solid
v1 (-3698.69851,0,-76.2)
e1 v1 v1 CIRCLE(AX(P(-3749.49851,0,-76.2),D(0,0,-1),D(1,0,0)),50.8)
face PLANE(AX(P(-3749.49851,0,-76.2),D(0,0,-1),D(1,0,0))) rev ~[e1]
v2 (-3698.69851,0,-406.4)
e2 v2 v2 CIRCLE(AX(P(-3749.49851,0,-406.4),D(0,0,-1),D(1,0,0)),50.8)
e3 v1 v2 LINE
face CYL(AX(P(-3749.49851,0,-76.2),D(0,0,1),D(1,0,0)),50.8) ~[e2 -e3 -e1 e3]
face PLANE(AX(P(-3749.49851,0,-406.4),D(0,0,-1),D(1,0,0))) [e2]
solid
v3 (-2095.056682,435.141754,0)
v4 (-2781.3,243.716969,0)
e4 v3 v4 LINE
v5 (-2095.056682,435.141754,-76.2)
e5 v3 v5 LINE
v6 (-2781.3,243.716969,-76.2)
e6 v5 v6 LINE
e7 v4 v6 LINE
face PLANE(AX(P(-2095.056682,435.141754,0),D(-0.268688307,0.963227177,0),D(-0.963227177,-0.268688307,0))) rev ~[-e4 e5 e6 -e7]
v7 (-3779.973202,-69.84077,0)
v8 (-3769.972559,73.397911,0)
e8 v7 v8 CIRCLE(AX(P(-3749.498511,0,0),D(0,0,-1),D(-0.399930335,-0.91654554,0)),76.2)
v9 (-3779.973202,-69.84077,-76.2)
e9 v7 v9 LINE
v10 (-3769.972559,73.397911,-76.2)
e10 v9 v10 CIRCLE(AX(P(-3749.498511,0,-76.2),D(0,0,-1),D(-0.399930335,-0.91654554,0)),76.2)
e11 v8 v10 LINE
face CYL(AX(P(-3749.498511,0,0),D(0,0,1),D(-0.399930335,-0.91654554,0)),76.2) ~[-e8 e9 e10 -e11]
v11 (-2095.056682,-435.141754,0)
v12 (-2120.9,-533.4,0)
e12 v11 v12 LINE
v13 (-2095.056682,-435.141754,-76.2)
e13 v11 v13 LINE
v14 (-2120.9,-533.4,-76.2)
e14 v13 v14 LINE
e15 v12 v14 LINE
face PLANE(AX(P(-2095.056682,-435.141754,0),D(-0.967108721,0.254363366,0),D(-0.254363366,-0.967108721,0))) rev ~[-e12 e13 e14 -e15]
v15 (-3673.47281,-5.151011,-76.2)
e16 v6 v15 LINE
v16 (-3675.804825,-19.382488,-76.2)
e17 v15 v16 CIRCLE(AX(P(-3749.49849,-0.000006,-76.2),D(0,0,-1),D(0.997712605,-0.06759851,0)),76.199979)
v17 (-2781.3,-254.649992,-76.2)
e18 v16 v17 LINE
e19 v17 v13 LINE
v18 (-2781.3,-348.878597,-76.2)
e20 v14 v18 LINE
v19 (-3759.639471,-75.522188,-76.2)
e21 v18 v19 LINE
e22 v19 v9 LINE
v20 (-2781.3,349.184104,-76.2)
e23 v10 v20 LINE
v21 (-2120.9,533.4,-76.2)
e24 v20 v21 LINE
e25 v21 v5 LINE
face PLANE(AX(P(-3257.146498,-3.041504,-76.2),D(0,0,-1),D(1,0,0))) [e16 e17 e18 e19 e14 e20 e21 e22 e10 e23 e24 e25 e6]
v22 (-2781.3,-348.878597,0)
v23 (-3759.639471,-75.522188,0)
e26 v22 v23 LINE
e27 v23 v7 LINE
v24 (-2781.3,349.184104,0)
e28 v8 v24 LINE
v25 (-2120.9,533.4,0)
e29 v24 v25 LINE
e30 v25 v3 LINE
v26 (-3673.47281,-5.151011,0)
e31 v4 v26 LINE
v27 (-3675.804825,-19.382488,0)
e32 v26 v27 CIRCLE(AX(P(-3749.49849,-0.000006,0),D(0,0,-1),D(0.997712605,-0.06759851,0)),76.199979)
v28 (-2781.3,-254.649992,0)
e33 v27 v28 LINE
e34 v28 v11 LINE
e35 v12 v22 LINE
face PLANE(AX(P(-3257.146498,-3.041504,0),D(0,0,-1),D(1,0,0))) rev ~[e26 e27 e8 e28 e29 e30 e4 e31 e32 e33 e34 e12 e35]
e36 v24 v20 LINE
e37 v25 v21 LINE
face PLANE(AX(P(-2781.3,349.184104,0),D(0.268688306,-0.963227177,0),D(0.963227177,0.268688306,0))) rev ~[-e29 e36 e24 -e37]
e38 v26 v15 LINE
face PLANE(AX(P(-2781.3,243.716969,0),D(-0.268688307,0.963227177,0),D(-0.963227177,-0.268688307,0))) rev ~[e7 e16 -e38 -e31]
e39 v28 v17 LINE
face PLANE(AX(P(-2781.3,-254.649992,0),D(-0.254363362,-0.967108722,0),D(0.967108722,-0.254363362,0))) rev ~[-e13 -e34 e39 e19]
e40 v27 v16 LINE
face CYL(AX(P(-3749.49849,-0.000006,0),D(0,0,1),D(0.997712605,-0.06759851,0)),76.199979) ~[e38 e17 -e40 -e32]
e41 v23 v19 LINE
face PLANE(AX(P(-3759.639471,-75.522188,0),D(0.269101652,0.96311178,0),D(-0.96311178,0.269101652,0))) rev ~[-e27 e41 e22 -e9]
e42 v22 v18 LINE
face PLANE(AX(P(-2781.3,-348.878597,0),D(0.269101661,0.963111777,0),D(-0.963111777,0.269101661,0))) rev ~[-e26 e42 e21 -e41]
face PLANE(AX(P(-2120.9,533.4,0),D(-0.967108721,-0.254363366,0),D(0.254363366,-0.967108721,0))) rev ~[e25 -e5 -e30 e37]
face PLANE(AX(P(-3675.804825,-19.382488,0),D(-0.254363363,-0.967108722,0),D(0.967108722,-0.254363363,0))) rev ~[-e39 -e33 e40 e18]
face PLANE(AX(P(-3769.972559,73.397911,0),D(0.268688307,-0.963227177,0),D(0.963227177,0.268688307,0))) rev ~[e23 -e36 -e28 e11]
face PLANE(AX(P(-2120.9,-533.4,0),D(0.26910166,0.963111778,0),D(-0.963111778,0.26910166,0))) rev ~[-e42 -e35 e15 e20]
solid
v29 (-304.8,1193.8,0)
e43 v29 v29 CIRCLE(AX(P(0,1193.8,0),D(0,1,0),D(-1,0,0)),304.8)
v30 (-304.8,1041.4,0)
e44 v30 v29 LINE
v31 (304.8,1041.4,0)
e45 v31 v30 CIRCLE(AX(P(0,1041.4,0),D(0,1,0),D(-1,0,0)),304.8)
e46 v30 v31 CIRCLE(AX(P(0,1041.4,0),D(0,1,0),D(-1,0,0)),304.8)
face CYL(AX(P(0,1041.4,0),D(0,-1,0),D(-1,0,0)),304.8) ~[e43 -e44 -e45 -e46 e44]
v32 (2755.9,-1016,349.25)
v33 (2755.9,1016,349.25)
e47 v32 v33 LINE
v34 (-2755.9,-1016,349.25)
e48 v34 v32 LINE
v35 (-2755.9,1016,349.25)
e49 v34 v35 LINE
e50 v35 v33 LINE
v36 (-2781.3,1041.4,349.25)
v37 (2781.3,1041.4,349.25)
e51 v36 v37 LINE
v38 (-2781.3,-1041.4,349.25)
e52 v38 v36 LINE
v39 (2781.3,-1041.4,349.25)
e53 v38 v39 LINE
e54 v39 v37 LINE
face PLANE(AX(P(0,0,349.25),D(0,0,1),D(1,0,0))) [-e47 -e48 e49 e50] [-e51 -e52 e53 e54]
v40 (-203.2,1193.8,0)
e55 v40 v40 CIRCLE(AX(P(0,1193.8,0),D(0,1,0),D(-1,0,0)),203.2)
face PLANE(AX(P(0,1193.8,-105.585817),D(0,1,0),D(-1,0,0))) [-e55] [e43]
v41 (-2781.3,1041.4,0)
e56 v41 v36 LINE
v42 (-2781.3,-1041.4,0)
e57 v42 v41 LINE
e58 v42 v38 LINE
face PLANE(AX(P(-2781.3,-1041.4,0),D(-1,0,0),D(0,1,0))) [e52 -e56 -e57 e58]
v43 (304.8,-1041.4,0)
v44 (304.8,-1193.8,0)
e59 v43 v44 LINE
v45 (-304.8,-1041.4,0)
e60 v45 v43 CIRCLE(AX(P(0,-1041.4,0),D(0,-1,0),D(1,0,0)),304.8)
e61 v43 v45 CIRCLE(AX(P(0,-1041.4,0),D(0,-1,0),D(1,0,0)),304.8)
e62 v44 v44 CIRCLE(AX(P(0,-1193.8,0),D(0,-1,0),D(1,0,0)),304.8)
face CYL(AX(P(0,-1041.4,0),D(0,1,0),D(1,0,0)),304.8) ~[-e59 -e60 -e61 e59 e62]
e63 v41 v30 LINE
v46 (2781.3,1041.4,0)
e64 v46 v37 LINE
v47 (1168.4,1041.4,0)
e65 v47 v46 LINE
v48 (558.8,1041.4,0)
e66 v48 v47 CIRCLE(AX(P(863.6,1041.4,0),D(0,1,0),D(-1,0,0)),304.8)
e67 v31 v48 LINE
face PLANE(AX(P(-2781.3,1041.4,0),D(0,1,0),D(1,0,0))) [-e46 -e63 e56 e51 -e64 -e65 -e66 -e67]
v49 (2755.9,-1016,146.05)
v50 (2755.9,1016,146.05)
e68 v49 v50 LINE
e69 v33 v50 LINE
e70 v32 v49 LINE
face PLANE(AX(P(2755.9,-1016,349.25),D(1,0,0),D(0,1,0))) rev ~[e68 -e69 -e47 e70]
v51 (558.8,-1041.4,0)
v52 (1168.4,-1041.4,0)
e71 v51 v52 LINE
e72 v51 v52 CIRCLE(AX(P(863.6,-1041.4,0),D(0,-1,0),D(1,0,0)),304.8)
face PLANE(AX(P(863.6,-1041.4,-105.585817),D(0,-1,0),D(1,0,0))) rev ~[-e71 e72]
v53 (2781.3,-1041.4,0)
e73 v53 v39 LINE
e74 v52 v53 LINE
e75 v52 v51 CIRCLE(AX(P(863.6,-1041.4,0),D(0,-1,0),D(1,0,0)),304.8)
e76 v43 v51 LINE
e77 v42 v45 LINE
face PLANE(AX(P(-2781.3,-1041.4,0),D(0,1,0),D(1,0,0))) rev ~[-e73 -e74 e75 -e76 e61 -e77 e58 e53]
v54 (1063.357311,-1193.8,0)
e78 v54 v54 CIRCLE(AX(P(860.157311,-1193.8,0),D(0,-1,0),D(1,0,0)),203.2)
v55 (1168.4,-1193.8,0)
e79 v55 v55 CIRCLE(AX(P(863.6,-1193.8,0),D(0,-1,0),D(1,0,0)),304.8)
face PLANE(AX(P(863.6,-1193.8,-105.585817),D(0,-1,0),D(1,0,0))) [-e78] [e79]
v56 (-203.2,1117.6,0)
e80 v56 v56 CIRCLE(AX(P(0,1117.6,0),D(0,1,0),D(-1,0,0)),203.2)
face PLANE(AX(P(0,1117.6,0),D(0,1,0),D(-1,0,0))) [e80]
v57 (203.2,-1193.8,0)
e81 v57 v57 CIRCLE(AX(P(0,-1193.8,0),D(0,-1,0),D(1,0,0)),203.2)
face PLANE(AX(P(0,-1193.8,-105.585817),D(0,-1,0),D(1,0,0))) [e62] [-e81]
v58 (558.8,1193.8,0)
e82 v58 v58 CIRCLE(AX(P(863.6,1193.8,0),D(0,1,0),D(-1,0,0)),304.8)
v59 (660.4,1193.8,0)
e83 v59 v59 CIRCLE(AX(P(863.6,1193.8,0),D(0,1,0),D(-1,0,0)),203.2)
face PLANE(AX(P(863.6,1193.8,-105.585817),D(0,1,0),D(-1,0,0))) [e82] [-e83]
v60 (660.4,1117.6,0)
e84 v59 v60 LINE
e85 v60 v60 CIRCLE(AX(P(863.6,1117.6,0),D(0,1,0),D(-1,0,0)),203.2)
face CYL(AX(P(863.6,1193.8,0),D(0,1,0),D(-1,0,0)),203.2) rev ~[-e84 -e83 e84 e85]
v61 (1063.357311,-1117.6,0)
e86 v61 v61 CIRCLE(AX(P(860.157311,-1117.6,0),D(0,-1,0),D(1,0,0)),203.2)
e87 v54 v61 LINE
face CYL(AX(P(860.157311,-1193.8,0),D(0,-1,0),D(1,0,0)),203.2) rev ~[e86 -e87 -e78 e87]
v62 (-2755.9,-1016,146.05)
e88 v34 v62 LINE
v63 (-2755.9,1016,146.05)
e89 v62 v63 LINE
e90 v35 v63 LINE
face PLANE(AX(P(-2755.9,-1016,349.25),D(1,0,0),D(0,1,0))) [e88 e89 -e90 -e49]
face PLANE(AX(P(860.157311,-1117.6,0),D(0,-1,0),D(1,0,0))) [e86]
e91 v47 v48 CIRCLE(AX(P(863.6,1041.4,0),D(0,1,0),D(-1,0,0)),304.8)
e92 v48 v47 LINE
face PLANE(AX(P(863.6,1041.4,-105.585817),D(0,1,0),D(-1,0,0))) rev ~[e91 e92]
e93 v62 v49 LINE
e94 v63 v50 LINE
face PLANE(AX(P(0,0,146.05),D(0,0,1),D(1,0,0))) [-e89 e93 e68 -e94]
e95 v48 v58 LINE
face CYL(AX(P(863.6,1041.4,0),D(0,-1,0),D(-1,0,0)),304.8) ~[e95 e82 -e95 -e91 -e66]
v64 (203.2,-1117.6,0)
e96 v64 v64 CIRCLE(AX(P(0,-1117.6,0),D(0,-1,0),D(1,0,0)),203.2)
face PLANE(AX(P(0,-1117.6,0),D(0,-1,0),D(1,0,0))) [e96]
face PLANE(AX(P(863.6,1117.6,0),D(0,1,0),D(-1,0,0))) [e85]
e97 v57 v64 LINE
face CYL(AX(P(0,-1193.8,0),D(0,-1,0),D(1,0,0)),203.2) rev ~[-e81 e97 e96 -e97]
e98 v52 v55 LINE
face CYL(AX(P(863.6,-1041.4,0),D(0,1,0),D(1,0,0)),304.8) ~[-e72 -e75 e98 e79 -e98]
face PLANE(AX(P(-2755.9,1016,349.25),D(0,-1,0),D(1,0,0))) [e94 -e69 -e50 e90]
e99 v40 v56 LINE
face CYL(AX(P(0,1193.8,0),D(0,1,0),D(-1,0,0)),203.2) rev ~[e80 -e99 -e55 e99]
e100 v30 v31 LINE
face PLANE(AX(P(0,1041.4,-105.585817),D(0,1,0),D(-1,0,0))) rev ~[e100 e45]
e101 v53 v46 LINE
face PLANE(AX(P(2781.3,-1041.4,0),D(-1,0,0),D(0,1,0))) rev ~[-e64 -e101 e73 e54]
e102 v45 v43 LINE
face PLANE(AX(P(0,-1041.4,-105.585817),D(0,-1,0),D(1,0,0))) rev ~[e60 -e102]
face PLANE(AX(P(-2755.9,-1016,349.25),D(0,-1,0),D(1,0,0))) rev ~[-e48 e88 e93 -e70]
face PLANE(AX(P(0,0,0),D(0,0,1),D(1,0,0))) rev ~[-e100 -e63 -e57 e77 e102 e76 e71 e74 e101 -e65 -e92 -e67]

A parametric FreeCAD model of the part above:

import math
import FreeCAD as App
import Part
import Sketcher
Q = App.Units.Quantity


def add_polygon(sketch, points):
    """Adds a closed chain of lines whose ends are joined by coincident constraints."""
    first, n = sketch.GeometryCount, len(points)
    for a, b in zip(points, points[1:] + points[:1]):
        sketch.addGeometry(Part.LineSegment(App.Vector(*a, 0), App.Vector(*b, 0)), False)
    for i in range(n):
        sketch.addConstraint(Sketcher.Constraint("Coincident", first + i, 2, first + (i + 1) % n, 1))

doc = App.newDocument("Part")
body = doc.addObject("PartDesign::Body", "Body")

# Sketch on XY plane
sketch1 = doc.addObject("Sketcher::SketchObject", "Sketch")
body.addObject(sketch1)
sketch1.AttachmentSupport = (doc.XY_Plane, [""])
sketch1.MapMode = "FlatFace"
add_polygon(sketch1, [(-2781, 1041), (-2781, -1041), (2781, -1041), (2781, 1041)])  # lines 0-3
sketch1.addConstraint([
    Sketcher.Constraint("Vertical", 0),
    Sketcher.Constraint("Horizontal", 1),
    Sketcher.Constraint("Vertical", 2),
    Sketcher.Constraint("Horizontal", 3),
    Sketcher.Constraint("Symmetric", 0, 2, 2, 2, -1, 1),
    Sketcher.Constraint("DistanceX", 1, 1, 1, 2, Q("219 in")),
    Sketcher.Constraint("DistanceY", 0, 2, 0, 1, Q("82 in")),
])
pad1 = doc.addObject("PartDesign::Pad", "Pad")
body.addObject(pad1)
pad1.Profile = sketch1
pad1.Length = Q("13.75 in")

# Sketch on XY plane
sketch2 = doc.addObject("Sketcher::SketchObject", "Sketch001")
body.addObject(sketch2)
sketch2.AttachmentSupport = (doc.XY_Plane, [""])
sketch2.MapMode = "FlatFace"
sketch2.AttachmentOffset = App.Placement(App.Vector(0, 0, 13.75 * 25.4), App.Rotation())
add_polygon(sketch2, [(-2756, 1016), (-2756, -1016), (2756, -1016), (2756, 1016)])  # lines 0-3
sketch2.addConstraint([
    Sketcher.Constraint("Vertical", 0),
    Sketcher.Constraint("Horizontal", 1),
    Sketcher.Constraint("Vertical", 2),
    Sketcher.Constraint("Horizontal", 3),
    Sketcher.Constraint("Symmetric", 0, 2, 2, 2, -1, 1),
    Sketcher.Constraint("DistanceX", 1, 1, 1, 2, Q("217 in")),
    Sketcher.Constraint("DistanceY", 0, 2, 0, 1, Q("80 in")),
])
pocket1 = doc.addObject("PartDesign::Pocket", "Pocket")
body.addObject(pocket1)
pocket1.Profile = sketch2
pocket1.Length = Q("8 in")

# Sketch on XZ plane
sketch3 = doc.addObject("Sketcher::SketchObject", "Sketch002")
body.addObject(sketch3)
sketch3.AttachmentSupport = (doc.XZ_Plane, [""])
sketch3.MapMode = "FlatFace"
sketch3.AttachmentOffset = App.Placement(App.Vector(0, 0, 41 * 25.4), App.Rotation())
sketch3.addGeometry([
    Part.Circle(App.Vector(0, 0, 0), App.Vector(0, 0, 1), 305),
    Part.Circle(App.Vector(864, 0, 0), App.Vector(0, 0, 1), 305),
], False)
sketch3.addConstraint([
    Sketcher.Constraint("Coincident", 0, 3, -1, 1),
    Sketcher.Constraint("Equal", 0, 1),
    Sketcher.Constraint("PointOnObject", 1, 3, -1),
    Sketcher.Constraint("Diameter", 0, Q("24 in")),
    Sketcher.Constraint("DistanceX", -1, 1, 1, 3, Q("34 in")),
])
pad2 = doc.addObject("PartDesign::Pad", "Pad001")
body.addObject(pad2)
pad2.Profile = sketch3
pad2.Length = Q("6 in")

# Sketch on XZ plane
sketch4 = doc.addObject("Sketcher::SketchObject", "Sketch003")
body.addObject(sketch4)
sketch4.AttachmentSupport = (doc.XZ_Plane, [""])
sketch4.MapMode = "FlatFace"
sketch4.AttachmentOffset = App.Placement(App.Vector(0, 0, 47 * 25.4), App.Rotation())
sketch4.addGeometry([
    Part.Circle(App.Vector(0, 0, 0), App.Vector(0, 0, 1), 203),
    Part.Circle(App.Vector(860, 0, 0), App.Vector(0, 0, 1), 203),
], False)
sketch4.addConstraint([
    Sketcher.Constraint("Coincident", 0, 3, -1, 1),
    Sketcher.Constraint("Equal", 0, 1),
    Sketcher.Constraint("PointOnObject", 1, 3, -1),
    Sketcher.Constraint("Diameter", 0, Q("16 in")),
    Sketcher.Constraint("DistanceX", -1, 1, 1, 3, Q("860.157311 mm")),
])
pocket2 = doc.addObject("PartDesign::Pocket", "Pocket001")
body.addObject(pocket2)
pocket2.Profile = sketch4
pocket2.Length = Q("3 in")

# Sketch on XZ plane
sketch5 = doc.addObject("Sketcher::SketchObject", "Sketch004")
body.addObject(sketch5)
sketch5.AttachmentSupport = (doc.XZ_Plane, [""])
sketch5.MapMode = "FlatFace"
sketch5.AttachmentOffset = App.Placement(App.Vector(0, 0, -41 * 25.4), App.Rotation())
sketch5.addGeometry([
    Part.Circle(App.Vector(864, 0, 0), App.Vector(0, 0, 1), 305),
    Part.Circle(App.Vector(0, 0, 0), App.Vector(0, 0, 1), 305),
], False)
sketch5.addConstraint([
    Sketcher.Constraint("Coincident", 1, 3, -1, 1),
    Sketcher.Constraint("Equal", 0, 1),
    Sketcher.Constraint("PointOnObject", 0, 3, -1),
    Sketcher.Constraint("Diameter", 0, Q("24 in")),
    Sketcher.Constraint("DistanceX", -1, 1, 0, 3, Q("34 in")),
])
pad3 = doc.addObject("PartDesign::Pad", "Pad002")
body.addObject(pad3)
pad3.Profile = sketch5
pad3.Length = Q("6 in")
pad3.Reversed = True

# Sketch on XZ plane
sketch6 = doc.addObject("Sketcher::SketchObject", "Sketch005")
body.addObject(sketch6)
sketch6.AttachmentSupport = (doc.XZ_Plane, [""])
sketch6.MapMode = "FlatFace"
sketch6.AttachmentOffset = App.Placement(App.Vector(0, 0, -47 * 25.4), App.Rotation())
sketch6.addGeometry([
    Part.Circle(App.Vector(864, 0, 0), App.Vector(0, 0, 1), 203),
    Part.Circle(App.Vector(0, 0, 0), App.Vector(0, 0, 1), 203),
], False)
sketch6.addConstraint([
    Sketcher.Constraint("Coincident", 1, 3, -1, 1),
    Sketcher.Constraint("Equal", 0, 1),
    Sketcher.Constraint("PointOnObject", 0, 3, -1),
    Sketcher.Constraint("Diameter", 0, Q("16 in")),
    Sketcher.Constraint("DistanceX", -1, 1, 0, 3, Q("34 in")),
])
pocket3 = doc.addObject("PartDesign::Pocket", "Pocket002")
body.addObject(pocket3)
pocket3.Profile = sketch6
pocket3.Length = Q("3 in")
pocket3.Reversed = True
body2 = doc.addObject("PartDesign::Body", "Body001")

# Sketch on XY plane
sketch7 = doc.addObject("Sketcher::SketchObject", "Sketch006")
body2.addObject(sketch7)
sketch7.AttachmentSupport = (doc.getObject("XY_Plane001"), [""])
sketch7.MapMode = "FlatFace"
sketch7.addGeometry([
    Part.LineSegment(App.Vector(-2781, -349, 0), App.Vector(-3760, -76, 0)),  # 0
    Part.LineSegment(App.Vector(-3760, -76, 0), App.Vector(-3780, -70, 0)),  # 1
    Part.ArcOfCircle(Part.Circle(App.Vector(-3749, 0, 0), App.Vector(0, 0, 1), 76), math.radians(106), math.radians(246)),  # 2
    Part.LineSegment(App.Vector(-3770, 73, 0), App.Vector(-2781, 349, 0)),  # 3
    Part.LineSegment(App.Vector(-2781, 349, 0), App.Vector(-2121, 533, 0)),  # 4
    Part.LineSegment(App.Vector(-2121, 533, 0), App.Vector(-2095, 435, 0)),  # 5
    Part.LineSegment(App.Vector(-2095, 435, 0), App.Vector(-2781, 244, 0)),  # 6
    Part.LineSegment(App.Vector(-2781, 244, 0), App.Vector(-3673, -5, 0)),  # 7
    Part.ArcOfCircle(Part.Circle(App.Vector(-3749, 0, 0), App.Vector(0, 0, 1), 76), math.radians(-14.74), math.radians(-3.88)),  # 8
    Part.LineSegment(App.Vector(-3676, -19, 0), App.Vector(-2781, -255, 0)),  # 9
    Part.LineSegment(App.Vector(-2781, -255, 0), App.Vector(-2095, -435, 0)),  # 10
    Part.LineSegment(App.Vector(-2095, -435, 0), App.Vector(-2121, -533, 0)),  # 11
    Part.LineSegment(App.Vector(-2121, -533, 0), App.Vector(-2781, -349, 0)),  # 12
], False)
sketch7.addConstraint([
    Sketcher.Constraint("Coincident", 0, 2, 1, 1),
    Sketcher.Constraint("Coincident", 1, 2, 2, 2),
    Sketcher.Constraint("Tangent", 2, 1, 3, 1),
    Sketcher.Constraint("Coincident", 3, 2, 4, 1),
    Sketcher.Constraint("Coincident", 4, 2, 5, 1),
    Sketcher.Constraint("Coincident", 5, 2, 6, 1),
    Sketcher.Constraint("Coincident", 6, 2, 7, 1),
    Sketcher.Constraint("Coincident", 7, 2, 8, 2),
    Sketcher.Constraint("Coincident", 8, 1, 9, 1),
    Sketcher.Constraint("Coincident", 9, 2, 10, 1),
    Sketcher.Constraint("Coincident", 10, 2, 11, 1),
    Sketcher.Constraint("Coincident", 11, 2, 12, 1),
    Sketcher.Constraint("Coincident", 12, 2, 0, 1),
    Sketcher.Constraint("Symmetric", 5, 2, 10, 2, -1),
    Sketcher.Constraint("Symmetric", 4, 2, 11, 2, -1),
    Sketcher.Constraint("PointOnObject", 2, 3, -1),
    Sketcher.Constraint("Parallel", 0, 1),
    Sketcher.Constraint("Parallel", 3, 4),
    Sketcher.Constraint("Parallel", 4, 6),
    Sketcher.Constraint("Parallel", 6, 7),
    Sketcher.Constraint("Parallel", 9, 10),
    Sketcher.Constraint("Perpendicular", 10, 11),
    Sketcher.Constraint("Parallel", 1, 12),
    Sketcher.Constraint("Vertical", 3, 2, 6, 2),
    Sketcher.Constraint("Vertical", 6, 2, 9, 2),
    Sketcher.Constraint("Vertical", 9, 2, 12, 2),
    Sketcher.Constraint("Radius", 2, Q("3 in")),
    Sketcher.Constraint("Distance", 5, Q("4 in")),
    Sketcher.Constraint("DistanceY", -1, 1, 4, 2, Q("21 in")),
    Sketcher.Constraint("DistanceX", 3, 2, 4, 2, Q("26 in")),
    Sketcher.Constraint("DistanceX", 3, 2, -1, 1, Q("109.5 in")),
    Sketcher.Constraint("Radius", 8, Q("76.199979 mm")),
    Sketcher.Constraint("DistanceY", 9, 2, 8, 1, Q("9.2625002 in")),
    Sketcher.Constraint("DistanceY", 0, 2, 2, 1, Q("148.920099 mm")),
    Sketcher.Constraint("DistanceX", 1, 2, 3, 2, Q("998.673202 mm")),
    Sketcher.Constraint("DistanceX", 2, 3, 7, 2, Q("76.025701 mm")),
    Sketcher.Constraint("DistanceY", 12, 2, 3, 2, Q("698.062701 mm")),
    Sketcher.Constraint("Distance", 9, Q("924.926851 mm")),
])
pad4 = doc.addObject("PartDesign::Pad", "Pad003")
body2.addObject(pad4)
pad4.Profile = sketch7
pad4.Length = Q("3 in")
pad4.Reversed = True
body3 = doc.addObject("PartDesign::Body", "Body002")

# Sketch on XY plane
sketch8 = doc.addObject("Sketcher::SketchObject", "Sketch007")
body3.addObject(sketch8)
sketch8.AttachmentSupport = (doc.getObject("XY_Plane002"), [""])
sketch8.MapMode = "FlatFace"
sketch8.AttachmentOffset = App.Placement(App.Vector(0, 0, -3 * 25.4), App.Rotation())
sketch8.addGeometry(Part.Circle(App.Vector(-3749, 0, 0), App.Vector(0, 0, 1), 51), False)
sketch8.addConstraint([
    Sketcher.Constraint("PointOnObject", 0, 3, -1),
    Sketcher.Constraint("Diameter", 0, Q("4 in")),
    Sketcher.Constraint("DistanceX", 0, 3, -1, 1, Q("3749.49851 mm")),
])
pad5 = doc.addObject("PartDesign::Pad", "Pad004")
body3.addObject(pad5)
pad5.Profile = sketch8
pad5.Length = Q("13 in")
pad5.Reversed = True

doc.recompute()
